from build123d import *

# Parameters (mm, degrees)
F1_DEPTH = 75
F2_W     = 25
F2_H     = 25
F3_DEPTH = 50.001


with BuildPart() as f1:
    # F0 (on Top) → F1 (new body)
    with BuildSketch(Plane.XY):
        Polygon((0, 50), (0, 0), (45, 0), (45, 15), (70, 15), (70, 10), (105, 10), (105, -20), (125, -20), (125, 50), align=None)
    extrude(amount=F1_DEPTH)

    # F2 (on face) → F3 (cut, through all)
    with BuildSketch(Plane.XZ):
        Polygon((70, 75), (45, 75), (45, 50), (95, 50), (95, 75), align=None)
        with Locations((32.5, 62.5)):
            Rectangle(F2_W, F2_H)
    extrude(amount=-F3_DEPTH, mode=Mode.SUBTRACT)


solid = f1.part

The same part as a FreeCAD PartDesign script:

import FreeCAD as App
import Part
import Sketcher
from FreeCAD import Vector
Q = App.Units.Quantity

doc = App.newDocument("Part")
body = doc.addObject("PartDesign::Body", "Body")

sketch1 = body.newObject("Sketcher::SketchObject", "Sketch")
sketch1.AttachmentSupport = (doc.getObject("XY_Plane"), [""])
sketch1.MapMode = "FlatFace"
sketch1.addGeometry([
    Part.LineSegment(Vector(0, 50, 0), Vector(0, 0, 0)),
    Part.LineSegment(Vector(0, 0, 0), Vector(45, 0, 0)),
    Part.LineSegment(Vector(45, 0, 0), Vector(45, 15, 0)),
    Part.LineSegment(Vector(45, 15, 0), Vector(70, 15, 0)),
    Part.LineSegment(Vector(70, 15, 0), Vector(70, 10, 0)),
    Part.LineSegment(Vector(70, 10, 0), Vector(105, 10, 0)),
    Part.LineSegment(Vector(105, 10, 0), Vector(105, -20, 0)),
    Part.LineSegment(Vector(105, -20, 0), Vector(125, -20, 0)),
    Part.LineSegment(Vector(125, -20, 0), Vector(125, 50, 0)),
    Part.LineSegment(Vector(125, 50, 0), Vector(0, 50, 0)),
], False)
sketch1.addConstraint([
    Sketcher.Constraint("Coincident", 0, 2, 1, 1),
    Sketcher.Constraint("Coincident", 1, 2, 2, 1),
    Sketcher.Constraint("Coincident", 2, 2, 3, 1),
    Sketcher.Constraint("Coincident", 3, 2, 4, 1),
    Sketcher.Constraint("Coincident", 4, 2, 5, 1),
    Sketcher.Constraint("Coincident", 5, 2, 6, 1),
    Sketcher.Constraint("Coincident", 6, 2, 7, 1),
    Sketcher.Constraint("Coincident", 7, 2, 8, 1),
    Sketcher.Constraint("Coincident", 8, 2, 9, 1),
    Sketcher.Constraint("Coincident", 9, 2, 0, 1),
    Sketcher.Constraint("Vertical", 0),
    Sketcher.Constraint("Horizontal", 1),
    Sketcher.Constraint("Vertical", 2),
    Sketcher.Constraint("Horizontal", 3),
    Sketcher.Constraint("Vertical", 4),
    Sketcher.Constraint("Horizontal", 5),
    Sketcher.Constraint("Vertical", 6),
    Sketcher.Constraint("Horizontal", 7),
    Sketcher.Constraint("Vertical", 8),
    Sketcher.Constraint("Horizontal", 9),
    Sketcher.Constraint("Coincident", 0, 2, -1, 1),
    Sketcher.Constraint("DistanceX", 1, 1, 1, 2, Q("45 mm")),
    Sketcher.Constraint("DistanceX", 3, 1, 3, 2, Q("25 mm")),
    Sketcher.Constraint("DistanceX", 5, 1, 5, 2, Q("35 mm")),
    Sketcher.Constraint("DistanceX", 7, 1, 7, 2, Q("20 mm")),
    Sketcher.Constraint("DistanceY", 0, 2, 0, 1, Q("50 mm")),
    Sketcher.Constraint("DistanceY", 2, 1, 2, 2, Q("15 mm")),
    Sketcher.Constraint("DistanceY", 4, 2, 4, 1, Q("5 mm")),
    Sketcher.Constraint("DistanceY", 6, 2, 6, 1, Q("30 mm")),
])
pad1 = body.newObject("PartDesign::Pad", "Pad")
pad1.Profile = sketch1
pad1.Length = 75

sketch2 = body.newObject("Sketcher::SketchObject", "Sketch001")
sketch2.AttachmentSupport = (doc.getObject("XZ_Plane"), [""])
sketch2.MapMode = "FlatFace"
sketch2.addGeometry([
    Part.LineSegment(Vector(95, 50, 0), Vector(95, 75, 0)),
    Part.LineSegment(Vector(95, 75, 0), Vector(20, 75, 0)),
    Part.LineSegment(Vector(20, 75, 0), Vector(20, 50, 0)),
    Part.LineSegment(Vector(20, 50, 0), Vector(95, 50, 0)),
], False)
sketch2.addConstraint([
    Sketcher.Constraint("Coincident", 0, 2, 1, 1),
    Sketcher.Constraint("Coincident", 1, 2, 2, 1),
    Sketcher.Constraint("Coincident", 2, 2, 3, 1),
    Sketcher.Constraint("Coincident", 3, 2, 0, 1),
    Sketcher.Constraint("Vertical", 0),
    Sketcher.Constraint("Horizontal", 1),
    Sketcher.Constraint("Vertical", 2),
    Sketcher.Constraint("Horizontal", 3),
    Sketcher.Constraint("DistanceX", 1, 2, 1, 1, Q("75 mm")),
    Sketcher.Constraint("DistanceY", 0, 1, 0, 2, Q("25 mm")),
    Sketcher.Constraint("DistanceX", -1, 1, 0, 2, Q("95 mm")),
    Sketcher.Constraint("DistanceY", -1, 1, 0, 2, Q("75 mm")),
])
pocket1 = body.newObject("PartDesign::Pocket", "Pocket")
pocket1.Profile = sketch2
pocket1.Type = "ThroughAll"

doc.recompute()
